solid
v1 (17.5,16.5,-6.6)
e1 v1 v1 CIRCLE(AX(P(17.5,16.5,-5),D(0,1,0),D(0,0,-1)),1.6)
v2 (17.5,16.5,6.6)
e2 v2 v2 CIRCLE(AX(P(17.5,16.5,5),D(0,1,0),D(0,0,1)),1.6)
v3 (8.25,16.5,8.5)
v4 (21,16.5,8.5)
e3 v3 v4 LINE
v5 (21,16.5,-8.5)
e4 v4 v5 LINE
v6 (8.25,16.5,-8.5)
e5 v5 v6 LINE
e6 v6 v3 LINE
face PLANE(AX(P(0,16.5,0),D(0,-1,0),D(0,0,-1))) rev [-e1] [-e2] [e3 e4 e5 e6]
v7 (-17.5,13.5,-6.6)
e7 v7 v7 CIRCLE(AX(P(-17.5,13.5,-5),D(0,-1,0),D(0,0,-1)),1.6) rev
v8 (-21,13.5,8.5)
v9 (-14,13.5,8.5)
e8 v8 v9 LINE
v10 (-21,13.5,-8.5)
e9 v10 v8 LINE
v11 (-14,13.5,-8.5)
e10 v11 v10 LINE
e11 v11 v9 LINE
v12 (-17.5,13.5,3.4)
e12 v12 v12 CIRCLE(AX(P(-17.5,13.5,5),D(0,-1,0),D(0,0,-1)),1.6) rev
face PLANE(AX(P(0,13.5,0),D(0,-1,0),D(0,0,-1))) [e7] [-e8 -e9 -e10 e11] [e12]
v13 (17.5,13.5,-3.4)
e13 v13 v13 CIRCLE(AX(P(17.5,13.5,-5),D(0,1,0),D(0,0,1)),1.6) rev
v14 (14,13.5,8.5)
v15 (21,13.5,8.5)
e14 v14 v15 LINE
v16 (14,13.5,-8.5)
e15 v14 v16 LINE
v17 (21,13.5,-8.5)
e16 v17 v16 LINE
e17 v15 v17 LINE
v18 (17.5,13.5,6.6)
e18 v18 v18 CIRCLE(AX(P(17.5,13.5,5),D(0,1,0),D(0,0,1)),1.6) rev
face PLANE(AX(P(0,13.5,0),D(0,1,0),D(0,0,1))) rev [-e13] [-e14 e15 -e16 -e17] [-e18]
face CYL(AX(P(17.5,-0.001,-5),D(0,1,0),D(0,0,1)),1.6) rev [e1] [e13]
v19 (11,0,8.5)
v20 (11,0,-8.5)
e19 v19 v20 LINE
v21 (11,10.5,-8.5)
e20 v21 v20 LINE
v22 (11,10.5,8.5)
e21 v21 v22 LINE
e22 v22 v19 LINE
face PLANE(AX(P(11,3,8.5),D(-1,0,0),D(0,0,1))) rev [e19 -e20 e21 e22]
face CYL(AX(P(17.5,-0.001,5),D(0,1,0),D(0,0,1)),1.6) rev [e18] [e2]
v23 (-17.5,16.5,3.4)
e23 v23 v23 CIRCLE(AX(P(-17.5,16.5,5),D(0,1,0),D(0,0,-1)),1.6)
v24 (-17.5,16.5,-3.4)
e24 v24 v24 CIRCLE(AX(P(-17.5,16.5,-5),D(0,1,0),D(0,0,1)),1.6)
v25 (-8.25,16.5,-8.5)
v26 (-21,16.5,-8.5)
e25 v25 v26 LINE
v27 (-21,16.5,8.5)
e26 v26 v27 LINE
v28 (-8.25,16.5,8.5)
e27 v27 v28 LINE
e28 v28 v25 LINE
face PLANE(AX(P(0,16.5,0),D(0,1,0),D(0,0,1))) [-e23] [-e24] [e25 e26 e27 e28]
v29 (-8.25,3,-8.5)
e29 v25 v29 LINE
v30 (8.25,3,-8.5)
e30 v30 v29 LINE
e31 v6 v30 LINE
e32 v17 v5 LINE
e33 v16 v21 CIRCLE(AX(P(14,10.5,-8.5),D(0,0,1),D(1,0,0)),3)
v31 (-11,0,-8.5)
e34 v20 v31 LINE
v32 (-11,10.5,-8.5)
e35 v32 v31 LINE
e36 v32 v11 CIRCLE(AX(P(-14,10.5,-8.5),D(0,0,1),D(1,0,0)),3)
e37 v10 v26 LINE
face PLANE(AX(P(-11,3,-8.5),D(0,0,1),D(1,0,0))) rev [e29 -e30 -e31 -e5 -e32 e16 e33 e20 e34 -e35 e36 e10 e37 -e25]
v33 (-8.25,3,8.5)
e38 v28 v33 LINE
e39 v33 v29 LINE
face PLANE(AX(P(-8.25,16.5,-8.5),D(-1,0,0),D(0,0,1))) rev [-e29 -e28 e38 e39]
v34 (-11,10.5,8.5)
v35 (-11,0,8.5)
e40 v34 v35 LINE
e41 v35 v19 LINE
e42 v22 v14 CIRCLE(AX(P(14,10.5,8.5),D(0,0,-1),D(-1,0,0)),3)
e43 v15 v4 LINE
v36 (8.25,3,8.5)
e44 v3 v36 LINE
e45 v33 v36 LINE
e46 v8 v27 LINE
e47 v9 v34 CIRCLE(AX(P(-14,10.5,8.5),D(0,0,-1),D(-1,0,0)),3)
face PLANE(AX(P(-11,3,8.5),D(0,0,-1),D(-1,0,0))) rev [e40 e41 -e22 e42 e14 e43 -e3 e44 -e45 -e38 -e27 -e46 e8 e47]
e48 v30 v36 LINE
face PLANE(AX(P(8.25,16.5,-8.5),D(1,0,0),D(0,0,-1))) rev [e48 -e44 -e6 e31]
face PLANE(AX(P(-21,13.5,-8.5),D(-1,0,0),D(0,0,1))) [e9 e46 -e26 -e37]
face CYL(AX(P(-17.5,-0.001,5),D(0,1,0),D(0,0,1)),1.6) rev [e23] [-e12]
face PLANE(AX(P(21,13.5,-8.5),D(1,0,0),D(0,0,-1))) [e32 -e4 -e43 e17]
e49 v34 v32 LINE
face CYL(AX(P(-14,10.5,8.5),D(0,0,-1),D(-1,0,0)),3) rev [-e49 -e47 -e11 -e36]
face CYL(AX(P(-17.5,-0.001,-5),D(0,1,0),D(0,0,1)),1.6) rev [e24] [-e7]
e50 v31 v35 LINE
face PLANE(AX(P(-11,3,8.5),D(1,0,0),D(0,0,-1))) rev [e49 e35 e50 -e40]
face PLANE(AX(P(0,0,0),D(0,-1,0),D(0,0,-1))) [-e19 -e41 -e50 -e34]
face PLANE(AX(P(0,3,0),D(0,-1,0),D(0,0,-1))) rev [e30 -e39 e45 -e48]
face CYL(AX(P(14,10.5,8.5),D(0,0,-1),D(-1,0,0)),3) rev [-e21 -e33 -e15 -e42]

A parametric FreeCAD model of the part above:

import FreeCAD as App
import Part
import Sketcher


def edges_at(feature, points):
    """Names of the edges that pass closest to the given points."""
    edges = feature.Shape.Edges
    near = lambda p: min(range(len(edges)), key=lambda i: edges[i].distToShape(Part.Vertex(*p))[0])
    return sorted({f"Edge{near(p) + 1}" for p in points})


def add_polygon(sketch, points):
    """Adds a closed chain of lines whose ends are joined by coincident constraints."""
    first, n = sketch.GeometryCount, len(points)
    for a, b in zip(points, points[1:] + points[:1]):
        sketch.addGeometry(Part.LineSegment(App.Vector(*a, 0), App.Vector(*b, 0)), False)
    for i in range(n):
        sketch.addConstraint(Sketcher.Constraint("Coincident", first + i, 2, first + (i + 1) % n, 1))

doc = App.newDocument("Part")
body = doc.addObject("PartDesign::Body", "Body")

sketch1 = doc.addObject("Sketcher::SketchObject", "Sketch")
body.addObject(sketch1)
sketch1.AttachmentSupport = (doc.XZ_Plane, [""])
sketch1.MapMode = "FlatFace"
add_polygon(sketch1, [(-11, -8), (-11, 8), (11, 8), (11, -8)])
sketch1.addConstraint(Sketcher.Constraint("Vertical", 0))
sketch1.addConstraint(Sketcher.Constraint("Horizontal", 1))
sketch1.addConstraint(Sketcher.Constraint("Vertical", 2))
sketch1.addConstraint(Sketcher.Constraint("Horizontal", 3))
sketch1.addConstraint(Sketcher.Constraint("Symmetric", 0, 2, 2, 2, -1, 1))
sketch1.addConstraint(Sketcher.Constraint("DistanceX", 1, 1, 1, 2, 22.0))
sketch1.addConstraint(Sketcher.Constraint("DistanceY", 0, 1, 0, 2, 17.0))
pad1 = doc.addObject("PartDesign::Pad", "Pad")
body.addObject(pad1)
pad1.Profile = sketch1
pad1.Length = 3
pad1.Reversed = True

sketch2 = doc.addObject("Sketcher::SketchObject", "Sketch001")
body.addObject(sketch2)
sketch2.AttachmentSupport = (doc.XZ_Plane, [""])
sketch2.MapMode = "FlatFace"
sketch2.AttachmentOffset = App.Placement(App.Vector(0, 0, -3), App.Rotation())
add_polygon(sketch2, [(-11, -8.5), (-11, 8.5), (-8.2, 8.5), (-8.2, -8.5)])
add_polygon(sketch2, [(8.2, -8.5), (8.2, 8.5), (11, 8.5), (11, -8.5)])
sketch2.addConstraint(Sketcher.Constraint("Vertical", 0))
sketch2.addConstraint(Sketcher.Constraint("Horizontal", 1))
sketch2.addConstraint(Sketcher.Constraint("Vertical", 2))
sketch2.addConstraint(Sketcher.Constraint("Horizontal", 3))
sketch2.addConstraint(Sketcher.Constraint("Vertical", 4))
sketch2.addConstraint(Sketcher.Constraint("Horizontal", 5))
sketch2.addConstraint(Sketcher.Constraint("Vertical", 6))
sketch2.addConstraint(Sketcher.Constraint("Horizontal", 7))
sketch2.addConstraint(Sketcher.Constraint("Symmetric", 2, 2, 4, 2, -1, 1))
sketch2.addConstraint(Sketcher.Constraint("Symmetric", 0, 2, 6, 2, -1, 1))
sketch2.addConstraint(Sketcher.Constraint("Horizontal", 1, 2, 4, 2))
sketch2.addConstraint(Sketcher.Constraint("DistanceY", 0, 1, 0, 2, 17.0))
sketch2.addConstraint(Sketcher.Constraint("DistanceX", 0, 2, -1, 1, 11.0))
sketch2.addConstraint(Sketcher.Constraint("DistanceX", 1, 1, 1, 2, 2.75))
pad2 = doc.addObject("PartDesign::Pad", "Pad001")
body.addObject(pad2)
pad2.Profile = sketch2
pad2.Length = 13.5
pad2.Reversed = True

sketch3 = doc.addObject("Sketcher::SketchObject", "Sketch002")
body.addObject(sketch3)
sketch3.AttachmentSupport = (doc.XZ_Plane, [""])
sketch3.MapMode = "FlatFace"
sketch3.AttachmentOffset = App.Placement(App.Vector(0, 0, -16.5), App.Rotation())
add_polygon(sketch3, [(11, -8), (11, 8), (21, 8), (21, -8)])
add_polygon(sketch3, [(-21, -8), (-21, 8), (-11, 8), (-11, -8)])
sketch3.addConstraint(Sketcher.Constraint("Vertical", 0))
sketch3.addConstraint(Sketcher.Constraint("Horizontal", 1))
sketch3.addConstraint(Sketcher.Constraint("Vertical", 2))
sketch3.addConstraint(Sketcher.Constraint("Horizontal", 3))
sketch3.addConstraint(Sketcher.Constraint("Vertical", 4))
sketch3.addConstraint(Sketcher.Constraint("Horizontal", 5))
sketch3.addConstraint(Sketcher.Constraint("Vertical", 6))
sketch3.addConstraint(Sketcher.Constraint("Horizontal", 7))
sketch3.addConstraint(Sketcher.Constraint("Symmetric", 2, 2, 4, 2, -1, 1))
sketch3.addConstraint(Sketcher.Constraint("Symmetric", 0, 2, 6, 2, -1, 1))
sketch3.addConstraint(Sketcher.Constraint("Horizontal", 1, 2, 4, 2))
sketch3.addConstraint(Sketcher.Constraint("DistanceX", 1, 1, 1, 2, 10.0))
sketch3.addConstraint(Sketcher.Constraint("DistanceY", 0, 1, 0, 2, 17.0))
sketch3.addConstraint(Sketcher.Constraint("DistanceX", -1, 1, 0, 2, 11.0))
pad3 = doc.addObject("PartDesign::Pad", "Pad002")
body.addObject(pad3)
pad3.Profile = sketch3
pad3.Length = 3

sketch4 = doc.addObject("Sketcher::SketchObject", "Sketch003")
body.addObject(sketch4)
sketch4.AttachmentSupport = (doc.XZ_Plane, [""])
sketch4.MapMode = "FlatFace"
sketch4.AttachmentOffset = App.Placement(App.Vector(0, 0, -16.5), App.Rotation())
sketch4.addGeometry(Part.Circle(App.Vector(-17.5, -5, 0), App.Vector(0, 0, 1), 1.6), False)
sketch4.addConstraint(Sketcher.Constraint("Diameter", 0, 3.2))
sketch4.addConstraint(Sketcher.Constraint("DistanceY", 0, 3, -1, 1, 5.0))
sketch4.addConstraint(Sketcher.Constraint("DistanceX", 0, 3, -1, 1, 17.5))
pocket1 = doc.addObject("PartDesign::Pocket", "Pocket")
body.addObject(pocket1)
pocket1.Profile = sketch4
pocket1.Type = "UpToFirst"
pocket1.Reversed = True

sketch5 = doc.addObject("Sketcher::SketchObject", "Sketch004")
body.addObject(sketch5)
sketch5.AttachmentSupport = (doc.XZ_Plane, [""])
sketch5.MapMode = "FlatFace"
sketch5.AttachmentOffset = App.Placement(App.Vector(0, 0, -16.5), App.Rotation())
sketch5.addGeometry(Part.Circle(App.Vector(-17.5, 5, 0), App.Vector(0, 0, 1), 1.6), False)
sketch5.addConstraint(Sketcher.Constraint("Diameter", 0, 3.2))
sketch5.addConstraint(Sketcher.Constraint("DistanceY", -1, 1, 0, 3, 5.0))
sketch5.addConstraint(Sketcher.Constraint("DistanceX", 0, 3, -1, 1, 17.5))
pocket2 = doc.addObject("PartDesign::Pocket", "Pocket001")
body.addObject(pocket2)
pocket2.Profile = sketch5
pocket2.Type = "UpToFirst"
pocket2.Reversed = True

sketch6 = doc.addObject("Sketcher::SketchObject", "Sketch005")
body.addObject(sketch6)
sketch6.AttachmentSupport = (doc.XZ_Plane, [""])
sketch6.MapMode = "FlatFace"
sketch6.AttachmentOffset = App.Placement(App.Vector(0, 0, -16.5), App.Rotation())
sketch6.addGeometry(Part.Circle(App.Vector(17.5, 5, 0), App.Vector(0, 0, 1), 1.6), False)
sketch6.addConstraint(Sketcher.Constraint("Diameter", 0, 3.2))
sketch6.addConstraint(Sketcher.Constraint("DistanceY", -1, 1, 0, 3, 5.0))
sketch6.addConstraint(Sketcher.Constraint("DistanceX", -1, 1, 0, 3, 17.5))
pocket3 = doc.addObject("PartDesign::Pocket", "Pocket002")
body.addObject(pocket3)
pocket3.Profile = sketch6
pocket3.Type = "UpToFirst"
pocket3.Reversed = True

sketch7 = doc.addObject("Sketcher::SketchObject", "Sketch006")
body.addObject(sketch7)
sketch7.AttachmentSupport = (doc.XZ_Plane, [""])
sketch7.MapMode = "FlatFace"
sketch7.AttachmentOffset = App.Placement(App.Vector(0, 0, -16.5), App.Rotation())
sketch7.addGeometry(Part.Circle(App.Vector(17.5, -5, 0), App.Vector(0, 0, 1), 1.6), False)
sketch7.addConstraint(Sketcher.Constraint("Diameter", 0, 3.2))
sketch7.addConstraint(Sketcher.Constraint("DistanceY", 0, 3, -1, 1, 5.0))
sketch7.addConstraint(Sketcher.Constraint("DistanceX", -1, 1, 0, 3, 17.5))
pocket4 = doc.addObject("PartDesign::Pocket", "Pocket003")
body.addObject(pocket4)
pocket4.Profile = sketch7
pocket4.Type = "UpToFirst"
pocket4.Reversed = True
doc.recompute()

fillet = doc.addObject("PartDesign::Fillet", "Fillet")
body.addObject(fillet)
fillet.Base = (pocket4, edges_at(pocket4, [(11, 13.5, 0), (-11, 13.5, 0)]))
fillet.Radius = 3

doc.recompute()
